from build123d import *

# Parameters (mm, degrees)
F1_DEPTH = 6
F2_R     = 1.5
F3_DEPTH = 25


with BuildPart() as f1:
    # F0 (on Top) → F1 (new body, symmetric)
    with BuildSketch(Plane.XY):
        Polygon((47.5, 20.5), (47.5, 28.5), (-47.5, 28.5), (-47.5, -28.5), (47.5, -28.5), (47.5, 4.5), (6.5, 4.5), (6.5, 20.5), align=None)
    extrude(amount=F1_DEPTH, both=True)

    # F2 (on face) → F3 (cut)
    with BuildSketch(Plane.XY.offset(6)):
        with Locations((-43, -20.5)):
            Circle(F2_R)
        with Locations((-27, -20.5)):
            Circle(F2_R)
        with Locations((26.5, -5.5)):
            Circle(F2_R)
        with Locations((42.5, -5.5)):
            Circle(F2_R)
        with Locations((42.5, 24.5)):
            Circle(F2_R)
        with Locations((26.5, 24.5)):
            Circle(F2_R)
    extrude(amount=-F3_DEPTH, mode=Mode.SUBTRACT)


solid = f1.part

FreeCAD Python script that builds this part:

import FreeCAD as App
import Part
import Sketcher

doc = App.newDocument("Part")
body = doc.addObject("PartDesign::Body", "Body")

sketch1 = body.newObject("Sketcher::SketchObject", "Sketch")
sketch1.AttachmentSupport = (doc.getObject("XY_Plane"), [""])
sketch1.MapMode = "FlatFace"
sketch1.addGeometry([
    Part.LineSegment(App.Vector(47.5, 20.5, 0), App.Vector(47.5, 28.5, 0)),
    Part.LineSegment(App.Vector(47.5, 28.5, 0), App.Vector(-47.5, 28.5, 0)),
    Part.LineSegment(App.Vector(-47.5, 28.5, 0), App.Vector(-47.5, -28.5, 0)),
    Part.LineSegment(App.Vector(-47.5, -28.5, 0), App.Vector(47.5, -28.5, 0)),
    Part.LineSegment(App.Vector(47.5, -28.5, 0), App.Vector(47.5, 4.5, 0)),
    Part.LineSegment(App.Vector(47.5, 4.5, 0), App.Vector(6.5, 4.5, 0)),
    Part.LineSegment(App.Vector(6.5, 4.5, 0), App.Vector(6.5, 20.5, 0)),
    Part.LineSegment(App.Vector(6.5, 20.5, 0), App.Vector(47.5, 20.5, 0)),
], False)
sketch1.addConstraint([
    Sketcher.Constraint("Coincident", 0, 2, 1, 1),
    Sketcher.Constraint("Coincident", 1, 2, 2, 1),
    Sketcher.Constraint("Coincident", 2, 2, 3, 1),
    Sketcher.Constraint("Coincident", 3, 2, 4, 1),
    Sketcher.Constraint("Coincident", 4, 2, 5, 1),
    Sketcher.Constraint("Coincident", 5, 2, 6, 1),
    Sketcher.Constraint("Coincident", 6, 2, 7, 1),
    Sketcher.Constraint("Coincident", 7, 2, 0, 1),
    Sketcher.Constraint("Vertical", 0),
    Sketcher.Constraint("Horizontal", 1),
    Sketcher.Constraint("Vertical", 2),
    Sketcher.Constraint("Horizontal", 3),
    Sketcher.Constraint("Vertical", 4),
    Sketcher.Constraint("Horizontal", 5),
    Sketcher.Constraint("Vertical", 6),
    Sketcher.Constraint("Horizontal", 7),
    Sketcher.Constraint("Symmetric", 0, 2, 2, 2, -1, 1),
    Sketcher.Constraint("Vertical", 0, 2, 3, 2),
    Sketcher.Constraint("DistanceX", 1, 2, 1, 1, 95.0),
    Sketcher.Constraint("DistanceX", 5, 2, 5, 1, 41.0),
    Sketcher.Constraint("DistanceY", 0, 1, 0, 2, 8.0),
    Sketcher.Constraint("DistanceY", 2, 2, 2, 1, 57.0),
    Sketcher.Constraint("DistanceY", 4, 1, 4, 2, 33.0),
])
pad1 = body.newObject("PartDesign::Pad", "Pad")
pad1.Profile = sketch1
pad1.Length = 12
pad1.Midplane = True

sketch2 = body.newObject("Sketcher::SketchObject", "Sketch001")
sketch2.AttachmentSupport = (doc.getObject("XY_Plane"), [""])
sketch2.MapMode = "FlatFace"
sketch2.AttachmentOffset = App.Placement(App.Vector(0, 0, 6), App.Rotation())
sketch2.addGeometry([
    Part.Circle(App.Vector(-43, -20.5, 0), App.Vector(0, 0, 1), 1.5),
    Part.Circle(App.Vector(-27, -20.5, 0), App.Vector(0, 0, 1), 1.5),
    Part.Circle(App.Vector(26.5, -5.5, 0), App.Vector(0, 0, 1), 1.5),
    Part.Circle(App.Vector(42.5, -5.5, 0), App.Vector(0, 0, 1), 1.5),
    Part.Circle(App.Vector(42.5, 24.5, 0), App.Vector(0, 0, 1), 1.5),
    Part.Circle(App.Vector(26.5, 24.5, 0), App.Vector(0, 0, 1), 1.5),
], False)
sketch2.addConstraint([
    Sketcher.Constraint("Equal", 0, 1),
    Sketcher.Constraint("Equal", 1, 2),
    Sketcher.Constraint("Equal", 2, 3),
    Sketcher.Constraint("Equal", 3, 4),
    Sketcher.Constraint("Equal", 4, 5),
    Sketcher.Constraint("Horizontal", 0, 3, 1, 3),
    Sketcher.Constraint("Horizontal", 2, 3, 3, 3),
    Sketcher.Constraint("Horizontal", 4, 3, 5, 3),
    Sketcher.Constraint("Vertical", 3, 3, 4, 3),
    Sketcher.Constraint("Vertical", 2, 3, 5, 3),
    Sketcher.Constraint("Diameter", 0, 3.0),
    Sketcher.Constraint("DistanceX", 0, 3, -1, 1, 43.0),
    Sketcher.Constraint("DistanceX", 1, 3, -1, 1, 27.0),
    Sketcher.Constraint("DistanceY", 1, 3, 2, 3, 15.0),
    Sketcher.Constraint("DistanceX", 2, 3, 3, 3, 16.0),
    Sketcher.Constraint("DistanceY", 3, 3, 4, 3, 30.0),
    Sketcher.Constraint("DistanceY", 0, 3, -1, 1, 20.5),
    Sketcher.Constraint("DistanceX", -1, 1, 2, 3, 26.5),
])
pocket1 = body.newObject("PartDesign::Pocket", "Pocket")
pocket1.Profile = sketch2
pocket1.Length = 25

doc.recompute()
